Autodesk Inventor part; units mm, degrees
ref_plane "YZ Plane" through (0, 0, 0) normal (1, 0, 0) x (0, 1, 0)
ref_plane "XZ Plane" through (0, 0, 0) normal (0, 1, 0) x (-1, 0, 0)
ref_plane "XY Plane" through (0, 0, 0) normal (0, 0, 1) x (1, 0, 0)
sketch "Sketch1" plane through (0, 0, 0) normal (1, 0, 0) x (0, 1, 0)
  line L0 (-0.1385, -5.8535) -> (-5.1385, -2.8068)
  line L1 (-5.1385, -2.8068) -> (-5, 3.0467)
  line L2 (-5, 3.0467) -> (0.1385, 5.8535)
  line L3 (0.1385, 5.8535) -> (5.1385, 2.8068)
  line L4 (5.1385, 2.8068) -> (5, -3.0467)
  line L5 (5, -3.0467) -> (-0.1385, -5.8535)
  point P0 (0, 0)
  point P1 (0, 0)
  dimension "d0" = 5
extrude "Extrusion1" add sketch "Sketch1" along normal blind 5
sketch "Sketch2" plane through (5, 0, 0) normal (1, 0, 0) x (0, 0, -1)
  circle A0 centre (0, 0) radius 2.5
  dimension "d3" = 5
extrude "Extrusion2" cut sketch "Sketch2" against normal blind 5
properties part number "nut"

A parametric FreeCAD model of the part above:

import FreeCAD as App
import Part
import Sketcher

V = App.Vector
Q = App.Units.Quantity

doc = App.newDocument("Part")
body = doc.addObject("PartDesign::Body", "Body")

# Sketch on YZ plane
sketch1 = body.newObject("Sketcher::SketchObject", "Sketch")
sketch1.AttachmentSupport = (doc.getObject("YZ_Plane"), [""])
sketch1.MapMode = "FlatFace"
sketch1.addGeometry([
    Part.LineSegment(V(-5.1385, -2.8068, 0), V(-0.1385, -5.8535, 0)),  # 0
    Part.LineSegment(V(-0.1385, -5.8535, 0), V(5, -3.0467, 0)),  # 1
    Part.LineSegment(V(5, -3.0467, 0), V(5.1385, 2.8068, 0)),  # 2
    Part.LineSegment(V(5.1385, 2.8068, 0), V(0.1385, 5.8535, 0)),  # 3
    Part.LineSegment(V(0.1385, 5.8535, 0), V(-5, 3.0467, 0)),  # 4
    Part.LineSegment(V(-5, 3.0467, 0), V(-5.1385, -2.8068, 0)),  # 5
], False)
sketch1.addConstraint([
    Sketcher.Constraint("Coincident", 0, 2, 1, 1),
    Sketcher.Constraint("Coincident", 1, 2, 2, 1),
    Sketcher.Constraint("Coincident", 2, 2, 3, 1),
    Sketcher.Constraint("Coincident", 3, 2, 4, 1),
    Sketcher.Constraint("Coincident", 4, 2, 5, 1),
    Sketcher.Constraint("Coincident", 5, 2, 0, 1),
    Sketcher.Constraint("Symmetric", 0, 2, 3, 2, -1, 1),
    Sketcher.Constraint("Symmetric", 1, 2, 4, 2, -1, 1),
    Sketcher.Constraint("Symmetric", 2, 2, 5, 2, -1, 1),
    Sketcher.Constraint("Equal", 0, 1),
    Sketcher.Constraint("Equal", 1, 2),
    Sketcher.Constraint("DistanceX", -1, 1, 1, 2, Q("5 mm")),
    Sketcher.Constraint("DistanceX", 3, 2, 2, 2, Q("5 mm")),
    Sketcher.Constraint("DistanceY", 2, 2, 4, 2, Q("0.24 mm")),
    Sketcher.Constraint("Distance", 0, Q("5.855 mm")),
])
pad1 = body.newObject("PartDesign::Pad", "Pad")
pad1.Profile = sketch1
pad1.Length = 5

# Sketch on YZ plane
sketch2 = body.newObject("Sketcher::SketchObject", "Sketch001")
sketch2.AttachmentSupport = (doc.getObject("YZ_Plane"), [""])
sketch2.MapMode = "FlatFace"
sketch2.AttachmentOffset = App.Placement(V(0, 0, 5), App.Rotation())
sketch2.addGeometry(Part.Circle(V(0, 0, 0), V(0, 0, 1), 2.5), False)
sketch2.addConstraint([
    Sketcher.Constraint("Coincident", 0, 3, -1, 1),
    Sketcher.Constraint("Diameter", 0, Q("5 mm")),
])
pocket1 = body.newObject("PartDesign::Pocket", "Pocket")
pocket1.Profile = sketch2
pocket1.Length = 5

doc.recompute()
